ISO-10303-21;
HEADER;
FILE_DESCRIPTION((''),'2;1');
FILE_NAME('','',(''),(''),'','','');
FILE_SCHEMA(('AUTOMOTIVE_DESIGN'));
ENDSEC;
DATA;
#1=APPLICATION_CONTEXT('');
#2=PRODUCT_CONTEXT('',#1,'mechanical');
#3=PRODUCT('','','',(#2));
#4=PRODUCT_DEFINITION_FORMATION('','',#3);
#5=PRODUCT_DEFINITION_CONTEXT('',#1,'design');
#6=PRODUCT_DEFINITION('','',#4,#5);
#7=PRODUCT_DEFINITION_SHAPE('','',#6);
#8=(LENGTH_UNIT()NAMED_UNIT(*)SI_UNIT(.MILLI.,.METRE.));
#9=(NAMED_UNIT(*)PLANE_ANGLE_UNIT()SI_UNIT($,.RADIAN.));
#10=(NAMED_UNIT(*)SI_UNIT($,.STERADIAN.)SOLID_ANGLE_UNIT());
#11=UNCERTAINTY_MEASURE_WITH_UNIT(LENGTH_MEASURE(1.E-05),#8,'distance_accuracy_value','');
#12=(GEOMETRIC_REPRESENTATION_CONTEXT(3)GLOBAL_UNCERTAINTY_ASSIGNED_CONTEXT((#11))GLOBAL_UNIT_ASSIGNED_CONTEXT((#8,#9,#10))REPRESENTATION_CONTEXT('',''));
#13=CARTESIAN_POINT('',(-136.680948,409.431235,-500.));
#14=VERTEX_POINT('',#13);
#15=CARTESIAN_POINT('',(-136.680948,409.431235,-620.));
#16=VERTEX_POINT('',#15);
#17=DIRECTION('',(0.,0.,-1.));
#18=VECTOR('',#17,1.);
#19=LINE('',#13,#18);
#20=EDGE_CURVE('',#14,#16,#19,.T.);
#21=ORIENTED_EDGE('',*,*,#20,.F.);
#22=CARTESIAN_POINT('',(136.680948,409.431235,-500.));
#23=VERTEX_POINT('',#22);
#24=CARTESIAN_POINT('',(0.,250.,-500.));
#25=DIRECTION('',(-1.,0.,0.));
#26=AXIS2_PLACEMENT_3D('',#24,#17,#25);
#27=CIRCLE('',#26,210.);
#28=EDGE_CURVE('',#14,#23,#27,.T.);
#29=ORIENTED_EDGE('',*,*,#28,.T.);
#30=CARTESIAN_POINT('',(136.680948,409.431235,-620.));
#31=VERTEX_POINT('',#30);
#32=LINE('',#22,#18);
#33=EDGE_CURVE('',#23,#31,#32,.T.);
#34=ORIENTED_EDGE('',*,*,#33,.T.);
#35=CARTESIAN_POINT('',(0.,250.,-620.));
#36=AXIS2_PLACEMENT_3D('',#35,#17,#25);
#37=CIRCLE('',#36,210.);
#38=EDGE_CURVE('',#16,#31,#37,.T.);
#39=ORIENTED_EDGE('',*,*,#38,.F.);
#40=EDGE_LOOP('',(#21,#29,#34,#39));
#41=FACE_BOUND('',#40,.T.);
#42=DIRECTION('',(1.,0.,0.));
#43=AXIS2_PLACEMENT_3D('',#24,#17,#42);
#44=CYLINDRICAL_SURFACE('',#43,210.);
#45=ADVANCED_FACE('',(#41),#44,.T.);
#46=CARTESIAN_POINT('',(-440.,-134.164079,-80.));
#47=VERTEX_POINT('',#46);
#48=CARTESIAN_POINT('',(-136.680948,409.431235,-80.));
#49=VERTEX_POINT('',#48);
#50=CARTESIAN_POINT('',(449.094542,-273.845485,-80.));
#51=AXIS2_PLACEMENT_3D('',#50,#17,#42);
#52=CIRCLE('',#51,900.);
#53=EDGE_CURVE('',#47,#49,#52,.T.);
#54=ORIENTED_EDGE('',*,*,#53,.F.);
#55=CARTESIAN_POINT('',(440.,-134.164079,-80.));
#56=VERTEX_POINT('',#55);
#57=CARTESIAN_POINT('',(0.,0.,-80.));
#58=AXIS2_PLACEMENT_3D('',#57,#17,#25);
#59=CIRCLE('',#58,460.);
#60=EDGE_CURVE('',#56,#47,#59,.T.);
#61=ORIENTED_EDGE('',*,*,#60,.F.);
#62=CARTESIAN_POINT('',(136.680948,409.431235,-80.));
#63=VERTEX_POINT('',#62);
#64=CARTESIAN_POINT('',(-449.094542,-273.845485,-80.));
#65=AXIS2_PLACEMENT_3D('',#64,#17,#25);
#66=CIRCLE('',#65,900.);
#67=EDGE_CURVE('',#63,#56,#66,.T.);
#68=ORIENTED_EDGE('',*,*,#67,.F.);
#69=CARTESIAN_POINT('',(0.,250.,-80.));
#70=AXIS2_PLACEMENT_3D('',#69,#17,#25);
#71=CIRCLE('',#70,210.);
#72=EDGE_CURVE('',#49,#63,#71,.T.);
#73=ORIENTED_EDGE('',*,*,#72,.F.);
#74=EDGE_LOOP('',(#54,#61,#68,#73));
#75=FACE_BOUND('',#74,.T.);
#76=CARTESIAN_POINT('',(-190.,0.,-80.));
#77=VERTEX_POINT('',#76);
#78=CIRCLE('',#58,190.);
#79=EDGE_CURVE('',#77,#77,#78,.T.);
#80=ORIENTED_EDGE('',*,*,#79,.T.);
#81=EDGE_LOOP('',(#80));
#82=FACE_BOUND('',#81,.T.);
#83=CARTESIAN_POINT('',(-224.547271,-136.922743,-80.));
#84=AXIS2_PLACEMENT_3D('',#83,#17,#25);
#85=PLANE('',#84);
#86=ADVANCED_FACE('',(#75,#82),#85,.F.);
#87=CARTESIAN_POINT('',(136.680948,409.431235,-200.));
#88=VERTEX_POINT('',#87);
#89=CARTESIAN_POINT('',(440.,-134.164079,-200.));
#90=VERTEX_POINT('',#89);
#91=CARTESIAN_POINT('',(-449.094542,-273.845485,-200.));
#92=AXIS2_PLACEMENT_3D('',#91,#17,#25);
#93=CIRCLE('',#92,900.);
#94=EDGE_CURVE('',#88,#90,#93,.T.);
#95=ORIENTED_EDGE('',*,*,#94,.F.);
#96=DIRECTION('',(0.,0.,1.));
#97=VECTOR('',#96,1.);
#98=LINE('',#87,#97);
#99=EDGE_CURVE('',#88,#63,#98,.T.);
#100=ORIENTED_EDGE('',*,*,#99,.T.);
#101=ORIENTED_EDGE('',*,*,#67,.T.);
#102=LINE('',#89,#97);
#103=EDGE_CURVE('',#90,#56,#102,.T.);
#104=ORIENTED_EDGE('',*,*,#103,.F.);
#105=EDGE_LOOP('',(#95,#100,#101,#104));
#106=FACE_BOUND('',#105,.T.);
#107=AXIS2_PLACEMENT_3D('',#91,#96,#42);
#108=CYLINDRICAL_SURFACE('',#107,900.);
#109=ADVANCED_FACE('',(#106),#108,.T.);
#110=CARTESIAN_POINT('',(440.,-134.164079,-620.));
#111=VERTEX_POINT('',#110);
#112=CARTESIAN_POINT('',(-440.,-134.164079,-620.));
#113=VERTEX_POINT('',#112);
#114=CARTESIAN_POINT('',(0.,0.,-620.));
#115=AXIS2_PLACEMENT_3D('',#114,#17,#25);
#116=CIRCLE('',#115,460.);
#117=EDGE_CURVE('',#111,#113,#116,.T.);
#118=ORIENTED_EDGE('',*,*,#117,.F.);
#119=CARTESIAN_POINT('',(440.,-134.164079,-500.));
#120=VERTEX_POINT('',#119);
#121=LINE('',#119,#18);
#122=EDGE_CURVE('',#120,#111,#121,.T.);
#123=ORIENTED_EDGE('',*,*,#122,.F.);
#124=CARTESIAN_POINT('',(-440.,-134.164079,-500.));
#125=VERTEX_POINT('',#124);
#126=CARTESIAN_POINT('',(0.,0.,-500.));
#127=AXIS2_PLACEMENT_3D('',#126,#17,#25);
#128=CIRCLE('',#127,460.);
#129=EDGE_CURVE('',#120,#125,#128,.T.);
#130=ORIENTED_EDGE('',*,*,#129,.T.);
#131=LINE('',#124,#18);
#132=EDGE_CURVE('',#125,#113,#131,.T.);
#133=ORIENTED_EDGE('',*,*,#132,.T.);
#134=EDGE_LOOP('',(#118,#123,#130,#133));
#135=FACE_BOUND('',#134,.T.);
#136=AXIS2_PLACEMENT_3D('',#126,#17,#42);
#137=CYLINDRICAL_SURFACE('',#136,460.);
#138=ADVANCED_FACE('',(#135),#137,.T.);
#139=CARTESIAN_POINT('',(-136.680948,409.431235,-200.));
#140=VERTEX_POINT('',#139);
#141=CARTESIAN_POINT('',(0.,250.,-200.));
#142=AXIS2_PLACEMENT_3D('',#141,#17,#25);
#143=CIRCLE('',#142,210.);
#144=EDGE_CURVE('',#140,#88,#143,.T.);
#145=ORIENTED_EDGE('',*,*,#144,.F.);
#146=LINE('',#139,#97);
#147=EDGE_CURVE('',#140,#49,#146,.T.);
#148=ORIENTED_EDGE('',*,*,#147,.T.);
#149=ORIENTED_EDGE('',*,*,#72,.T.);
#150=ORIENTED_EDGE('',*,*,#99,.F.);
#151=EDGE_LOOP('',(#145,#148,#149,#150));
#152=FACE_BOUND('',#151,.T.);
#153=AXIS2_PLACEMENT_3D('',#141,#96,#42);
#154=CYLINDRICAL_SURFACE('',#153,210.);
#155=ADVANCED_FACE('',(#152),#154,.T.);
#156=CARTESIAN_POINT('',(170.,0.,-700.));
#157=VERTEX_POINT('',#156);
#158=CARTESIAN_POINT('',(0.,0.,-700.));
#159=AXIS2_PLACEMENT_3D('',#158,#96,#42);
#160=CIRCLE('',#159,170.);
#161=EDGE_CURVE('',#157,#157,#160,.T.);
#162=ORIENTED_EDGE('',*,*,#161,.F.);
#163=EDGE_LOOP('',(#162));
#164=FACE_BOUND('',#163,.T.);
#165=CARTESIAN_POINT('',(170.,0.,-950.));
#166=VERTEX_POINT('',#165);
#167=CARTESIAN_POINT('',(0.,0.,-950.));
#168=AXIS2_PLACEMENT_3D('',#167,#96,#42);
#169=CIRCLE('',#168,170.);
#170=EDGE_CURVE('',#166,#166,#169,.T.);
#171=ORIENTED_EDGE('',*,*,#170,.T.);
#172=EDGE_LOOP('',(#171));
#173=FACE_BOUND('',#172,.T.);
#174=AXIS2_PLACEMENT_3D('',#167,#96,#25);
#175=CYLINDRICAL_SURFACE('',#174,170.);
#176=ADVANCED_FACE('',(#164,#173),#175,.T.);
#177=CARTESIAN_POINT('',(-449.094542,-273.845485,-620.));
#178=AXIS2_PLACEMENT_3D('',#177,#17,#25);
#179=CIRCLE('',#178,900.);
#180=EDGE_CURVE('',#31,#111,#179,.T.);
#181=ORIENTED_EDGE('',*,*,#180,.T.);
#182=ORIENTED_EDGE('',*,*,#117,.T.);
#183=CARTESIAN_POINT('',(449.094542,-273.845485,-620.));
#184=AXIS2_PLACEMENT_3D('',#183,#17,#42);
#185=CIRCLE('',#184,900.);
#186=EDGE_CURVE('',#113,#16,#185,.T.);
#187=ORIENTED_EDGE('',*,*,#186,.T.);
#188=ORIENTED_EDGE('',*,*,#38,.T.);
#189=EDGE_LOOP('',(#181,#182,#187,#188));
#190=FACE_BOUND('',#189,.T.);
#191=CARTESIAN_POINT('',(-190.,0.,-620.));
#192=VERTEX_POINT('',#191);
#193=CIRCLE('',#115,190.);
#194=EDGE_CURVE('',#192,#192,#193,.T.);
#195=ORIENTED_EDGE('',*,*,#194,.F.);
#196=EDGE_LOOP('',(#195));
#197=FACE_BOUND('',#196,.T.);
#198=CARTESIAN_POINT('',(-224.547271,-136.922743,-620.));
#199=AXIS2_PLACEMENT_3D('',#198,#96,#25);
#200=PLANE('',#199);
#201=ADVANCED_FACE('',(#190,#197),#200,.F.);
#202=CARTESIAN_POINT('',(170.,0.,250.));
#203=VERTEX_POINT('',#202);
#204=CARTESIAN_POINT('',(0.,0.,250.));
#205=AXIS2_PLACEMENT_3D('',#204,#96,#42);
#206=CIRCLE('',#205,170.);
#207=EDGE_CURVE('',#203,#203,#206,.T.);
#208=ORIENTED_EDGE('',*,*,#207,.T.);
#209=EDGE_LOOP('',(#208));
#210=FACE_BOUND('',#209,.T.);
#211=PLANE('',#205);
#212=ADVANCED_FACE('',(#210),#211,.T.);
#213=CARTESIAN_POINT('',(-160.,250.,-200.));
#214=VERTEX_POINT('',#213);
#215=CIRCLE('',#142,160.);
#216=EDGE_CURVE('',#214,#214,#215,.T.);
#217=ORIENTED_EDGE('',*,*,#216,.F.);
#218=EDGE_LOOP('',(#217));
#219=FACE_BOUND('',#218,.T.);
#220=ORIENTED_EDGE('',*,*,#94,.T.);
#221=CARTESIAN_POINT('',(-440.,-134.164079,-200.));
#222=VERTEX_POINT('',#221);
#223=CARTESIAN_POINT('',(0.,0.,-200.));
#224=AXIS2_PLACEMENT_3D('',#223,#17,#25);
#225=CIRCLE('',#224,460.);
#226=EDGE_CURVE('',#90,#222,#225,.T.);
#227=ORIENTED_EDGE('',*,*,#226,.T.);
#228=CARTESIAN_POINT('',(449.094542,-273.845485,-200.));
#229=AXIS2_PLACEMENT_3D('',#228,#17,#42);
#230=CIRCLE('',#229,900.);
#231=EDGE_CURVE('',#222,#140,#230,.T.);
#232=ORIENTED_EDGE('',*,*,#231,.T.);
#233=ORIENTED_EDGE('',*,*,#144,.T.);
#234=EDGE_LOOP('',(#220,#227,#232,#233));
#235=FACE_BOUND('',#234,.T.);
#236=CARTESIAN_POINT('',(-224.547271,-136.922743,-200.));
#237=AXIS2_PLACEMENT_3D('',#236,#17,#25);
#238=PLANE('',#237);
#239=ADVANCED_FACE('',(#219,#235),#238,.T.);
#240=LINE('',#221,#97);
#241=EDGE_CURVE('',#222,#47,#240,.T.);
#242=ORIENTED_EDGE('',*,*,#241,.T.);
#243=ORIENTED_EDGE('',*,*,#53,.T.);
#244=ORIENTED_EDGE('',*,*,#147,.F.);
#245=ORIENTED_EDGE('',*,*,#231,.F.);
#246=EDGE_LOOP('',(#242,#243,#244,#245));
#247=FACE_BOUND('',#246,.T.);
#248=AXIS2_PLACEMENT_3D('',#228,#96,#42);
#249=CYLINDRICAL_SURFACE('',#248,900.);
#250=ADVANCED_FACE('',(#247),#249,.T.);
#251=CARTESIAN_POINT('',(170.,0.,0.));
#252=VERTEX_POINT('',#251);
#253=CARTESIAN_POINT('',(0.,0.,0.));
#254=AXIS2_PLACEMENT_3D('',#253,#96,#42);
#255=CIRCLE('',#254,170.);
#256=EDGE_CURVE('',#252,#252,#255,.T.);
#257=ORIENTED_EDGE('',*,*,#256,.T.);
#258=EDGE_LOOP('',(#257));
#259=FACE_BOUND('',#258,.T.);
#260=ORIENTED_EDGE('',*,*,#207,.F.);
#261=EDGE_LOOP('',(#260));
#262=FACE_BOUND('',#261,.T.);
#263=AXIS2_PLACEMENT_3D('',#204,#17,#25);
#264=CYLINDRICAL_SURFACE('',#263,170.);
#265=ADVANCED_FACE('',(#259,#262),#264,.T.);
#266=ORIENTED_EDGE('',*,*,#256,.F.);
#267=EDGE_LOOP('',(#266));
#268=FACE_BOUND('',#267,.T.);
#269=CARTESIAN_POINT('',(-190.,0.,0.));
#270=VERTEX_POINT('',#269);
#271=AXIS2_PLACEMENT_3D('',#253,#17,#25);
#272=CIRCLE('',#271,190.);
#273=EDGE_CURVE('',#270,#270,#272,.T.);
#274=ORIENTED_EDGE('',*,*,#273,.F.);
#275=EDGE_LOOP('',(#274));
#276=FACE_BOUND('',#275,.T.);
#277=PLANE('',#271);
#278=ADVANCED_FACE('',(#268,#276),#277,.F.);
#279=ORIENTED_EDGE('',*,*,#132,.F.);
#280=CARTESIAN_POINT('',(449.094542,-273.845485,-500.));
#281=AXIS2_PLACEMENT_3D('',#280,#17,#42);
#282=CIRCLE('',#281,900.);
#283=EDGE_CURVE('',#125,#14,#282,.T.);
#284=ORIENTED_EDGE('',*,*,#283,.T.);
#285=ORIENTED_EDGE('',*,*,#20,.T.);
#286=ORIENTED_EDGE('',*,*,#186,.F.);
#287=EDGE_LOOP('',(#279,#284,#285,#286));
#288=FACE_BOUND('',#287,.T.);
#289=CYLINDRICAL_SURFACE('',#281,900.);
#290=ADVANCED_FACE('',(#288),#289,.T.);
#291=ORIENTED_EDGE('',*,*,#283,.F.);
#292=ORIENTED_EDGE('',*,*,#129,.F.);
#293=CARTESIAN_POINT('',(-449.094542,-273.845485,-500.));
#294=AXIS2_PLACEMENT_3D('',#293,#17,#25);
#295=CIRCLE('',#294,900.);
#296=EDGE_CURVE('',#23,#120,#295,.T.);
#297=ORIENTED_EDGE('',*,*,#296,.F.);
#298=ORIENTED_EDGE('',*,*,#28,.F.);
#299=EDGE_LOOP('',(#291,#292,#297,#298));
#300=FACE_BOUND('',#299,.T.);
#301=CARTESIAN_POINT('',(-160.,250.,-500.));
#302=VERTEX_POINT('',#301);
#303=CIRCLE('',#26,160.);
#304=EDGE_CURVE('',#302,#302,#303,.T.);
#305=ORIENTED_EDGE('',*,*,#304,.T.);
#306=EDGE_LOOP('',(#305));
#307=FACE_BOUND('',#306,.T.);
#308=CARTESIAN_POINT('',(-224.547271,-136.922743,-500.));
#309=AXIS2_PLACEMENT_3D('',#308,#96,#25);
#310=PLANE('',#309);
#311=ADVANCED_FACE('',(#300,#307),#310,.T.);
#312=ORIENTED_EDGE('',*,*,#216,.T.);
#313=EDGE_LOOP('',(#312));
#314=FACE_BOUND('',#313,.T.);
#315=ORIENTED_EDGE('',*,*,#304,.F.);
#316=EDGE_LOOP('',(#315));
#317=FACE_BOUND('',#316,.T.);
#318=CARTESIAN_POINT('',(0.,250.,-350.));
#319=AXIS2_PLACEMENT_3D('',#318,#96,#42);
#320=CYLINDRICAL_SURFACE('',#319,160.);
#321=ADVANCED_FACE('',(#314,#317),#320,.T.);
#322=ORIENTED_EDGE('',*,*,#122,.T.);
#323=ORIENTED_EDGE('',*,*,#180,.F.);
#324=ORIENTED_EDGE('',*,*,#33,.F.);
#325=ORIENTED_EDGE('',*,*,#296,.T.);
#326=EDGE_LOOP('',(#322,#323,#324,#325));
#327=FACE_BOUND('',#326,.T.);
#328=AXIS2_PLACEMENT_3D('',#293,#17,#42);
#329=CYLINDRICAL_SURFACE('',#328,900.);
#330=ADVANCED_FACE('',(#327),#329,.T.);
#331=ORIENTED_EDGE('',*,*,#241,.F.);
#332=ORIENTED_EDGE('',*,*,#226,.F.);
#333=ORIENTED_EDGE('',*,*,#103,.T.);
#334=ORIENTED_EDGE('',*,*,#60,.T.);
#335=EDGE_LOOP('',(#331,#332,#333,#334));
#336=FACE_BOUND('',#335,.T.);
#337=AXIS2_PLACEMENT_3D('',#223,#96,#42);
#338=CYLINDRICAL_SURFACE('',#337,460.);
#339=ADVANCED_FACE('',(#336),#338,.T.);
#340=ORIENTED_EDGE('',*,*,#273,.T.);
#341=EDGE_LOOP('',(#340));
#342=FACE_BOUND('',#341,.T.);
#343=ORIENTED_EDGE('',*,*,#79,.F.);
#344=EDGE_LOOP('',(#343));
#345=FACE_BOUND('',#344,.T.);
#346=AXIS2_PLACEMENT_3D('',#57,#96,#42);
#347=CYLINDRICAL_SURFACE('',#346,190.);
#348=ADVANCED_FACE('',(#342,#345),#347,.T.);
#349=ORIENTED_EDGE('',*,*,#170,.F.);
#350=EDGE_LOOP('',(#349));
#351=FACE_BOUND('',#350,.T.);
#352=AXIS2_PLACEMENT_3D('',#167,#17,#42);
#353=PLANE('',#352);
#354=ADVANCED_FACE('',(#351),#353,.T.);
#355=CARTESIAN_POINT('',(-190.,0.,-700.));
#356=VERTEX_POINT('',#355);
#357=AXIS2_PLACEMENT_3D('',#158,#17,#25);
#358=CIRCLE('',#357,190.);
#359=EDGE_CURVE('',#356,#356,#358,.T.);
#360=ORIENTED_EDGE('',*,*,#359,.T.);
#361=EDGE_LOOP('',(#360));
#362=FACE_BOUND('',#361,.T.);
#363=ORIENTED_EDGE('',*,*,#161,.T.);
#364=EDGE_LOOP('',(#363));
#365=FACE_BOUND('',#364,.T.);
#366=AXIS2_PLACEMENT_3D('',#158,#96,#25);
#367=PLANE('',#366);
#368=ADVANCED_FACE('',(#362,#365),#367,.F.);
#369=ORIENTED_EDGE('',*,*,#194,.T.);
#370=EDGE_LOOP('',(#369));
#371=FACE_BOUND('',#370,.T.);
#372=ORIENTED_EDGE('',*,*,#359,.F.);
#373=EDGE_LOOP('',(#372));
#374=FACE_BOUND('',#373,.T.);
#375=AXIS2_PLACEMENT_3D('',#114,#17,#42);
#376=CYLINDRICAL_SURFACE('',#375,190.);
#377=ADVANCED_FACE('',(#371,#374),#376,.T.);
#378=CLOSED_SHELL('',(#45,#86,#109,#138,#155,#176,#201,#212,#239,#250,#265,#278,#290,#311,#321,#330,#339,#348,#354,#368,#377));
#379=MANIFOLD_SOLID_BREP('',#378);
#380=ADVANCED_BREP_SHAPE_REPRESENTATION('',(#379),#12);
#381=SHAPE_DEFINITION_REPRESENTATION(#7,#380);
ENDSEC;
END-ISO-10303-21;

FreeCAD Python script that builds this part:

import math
import FreeCAD as App
import Part
import Sketcher

V = App.Vector
Q = App.Units.Quantity

doc = App.newDocument("Part")
params = doc.addObject("Spreadsheet::Sheet", "Params")
for row, (alias, value) in enumerate([
    ("sketch1_diameter", "340 mm"),
    ("pad1_length", "250 mm"),
    ("sketch2_diameter", "380 mm"),
    ("pad2_length", "80 mm"),
    ("sketch3_radius", "460 mm"),
    ("sketch3_radius2", "900 mm"),
    ("sketch3_radius3", "210 mm"),
    ("pad3_length", "120 mm"),
    ("sketch4_diameter", "320 mm"),
    ("pad4_length", "150 mm"),
], start=1):
    params.set(f"A{row}", alias)
    params.set(f"B{row}", "=" + value)
    params.setAlias(f"B{row}", alias)

body = doc.addObject("PartDesign::Body", "Body")

# Sketch on XY plane
sketch1 = body.newObject("Sketcher::SketchObject", "Sketch")
sketch1.AttachmentSupport = (doc.getObject("XY_Plane"), [""])
sketch1.MapMode = "FlatFace"
sketch1.addGeometry(Part.Circle(V(0, 0, 0), V(0, 0, 1), 170), False)
sketch1.addConstraint(Sketcher.Constraint("Coincident", 0, 3, -1, 1))
sketch1.addConstraint(Sketcher.Constraint("Diameter", 0, Q("340 mm")))
sketch1.setExpression("Constraints[1]", "Params.sketch1_diameter")
pad1 = body.newObject("PartDesign::Pad", "Pad")
pad1.Profile = sketch1
pad1.setExpression("Length", "Params.pad1_length")

# Sketch on XY plane
sketch2 = body.newObject("Sketcher::SketchObject", "Sketch001")
sketch2.AttachmentSupport = (doc.getObject("XY_Plane"), [""])
sketch2.MapMode = "FlatFace"
sketch2.addGeometry(Part.Circle(V(0, 0, 0), V(0, 0, 1), 190), False)
sketch2.addConstraint(Sketcher.Constraint("Coincident", 0, 3, -1, 1))
sketch2.addConstraint(Sketcher.Constraint("Diameter", 0, Q("380 mm")))
sketch2.setExpression("Constraints[1]", "Params.sketch2_diameter")
pad2 = body.newObject("PartDesign::Pad", "Pad001")
pad2.Profile = sketch2
pad2.setExpression("Length", "Params.pad2_length")
pad2.Reversed = True

# Sketch on XY plane
sketch3 = body.newObject("Sketcher::SketchObject", "Sketch002")
sketch3.AttachmentSupport = (doc.getObject("XY_Plane"), [""])
sketch3.MapMode = "FlatFace"
sketch3.AttachmentOffset = App.Placement(V(0, 0, -80), App.Rotation())
sketch3.addGeometry(Part.ArcOfCircle(Part.Circle(V(0, 0, 0), V(0, 0, 1), 460), math.radians(-163), math.radians(-17)), False)
sketch3.addGeometry(Part.ArcOfCircle(Part.Circle(V(449, -274, 0), V(0, 0, 1), 900), math.radians(131), math.radians(171)), False)
sketch3.addGeometry(Part.ArcOfCircle(Part.Circle(V(0, 250, 0), V(0, 0, 1), 210), math.radians(49), math.radians(131)), False)
sketch3.addGeometry(Part.ArcOfCircle(Part.Circle(V(-449, -274, 0), V(0, 0, 1), 900), math.radians(9), math.radians(49)), False)
sketch3.addConstraint(Sketcher.Constraint("Coincident", 0, 1, 1, 2))
sketch3.addConstraint(Sketcher.Constraint("Tangent", 1, 1, 2, 2))
sketch3.addConstraint(Sketcher.Constraint("Tangent", 2, 1, 3, 2))
sketch3.addConstraint(Sketcher.Constraint("Coincident", 3, 1, 0, 2))
sketch3.addConstraint(Sketcher.Constraint("Coincident", 0, 3, -1, 1))
sketch3.addConstraint(Sketcher.Constraint("Equal", 1, 3))
sketch3.addConstraint(Sketcher.Constraint("Symmetric", 1, 3, 3, 3, -2))
sketch3.addConstraint(Sketcher.Constraint("Radius", 0, Q("460 mm")))
sketch3.addConstraint(Sketcher.Constraint("Radius", 1, Q("900 mm")))
sketch3.addConstraint(Sketcher.Constraint("Radius", 2, Q("210 mm")))
sketch3.addConstraint(Sketcher.Constraint("DistanceY", -1, 1, 2, 3, Q("250 mm")))
sketch3.addConstraint(Sketcher.Constraint("DistanceX", 0, 1, -1, 1, Q("440 mm")))
sketch3.setExpression("Constraints[7]", "Params.sketch3_radius")
sketch3.setExpression("Constraints[8]", "Params.sketch3_radius2")
sketch3.setExpression("Constraints[9]", "Params.sketch3_radius3")
pad3 = body.newObject("PartDesign::Pad", "Pad002")
pad3.Profile = sketch3
pad3.setExpression("Length", "Params.pad3_length")
pad3.Reversed = True

# Sketch on XY plane
sketch4 = body.newObject("Sketcher::SketchObject", "Sketch003")
sketch4.AttachmentSupport = (doc.getObject("XY_Plane"), [""])
sketch4.MapMode = "FlatFace"
sketch4.AttachmentOffset = App.Placement(V(0, 0, -200), App.Rotation())
sketch4.addGeometry(Part.Circle(V(0, 250, 0), V(0, 0, 1), 160), False)
sketch4.addConstraint(Sketcher.Constraint("PointOnObject", 0, 3, -2))
sketch4.addConstraint(Sketcher.Constraint("Diameter", 0, Q("320 mm")))
sketch4.addConstraint(Sketcher.Constraint("DistanceY", -1, 1, 0, 3, Q("250 mm")))
sketch4.setExpression("Constraints[1]", "Params.sketch4_diameter")
pad4 = body.newObject("PartDesign::Pad", "Pad003")
pad4.Profile = sketch4
pad4.setExpression("Length", "Params.pad4_length")
pad4.Reversed = True
body2 = doc.addObject("PartDesign::Body", "Body001")
doc.recompute()

body2.BaseFeature = body
doc.recompute()

mirroring = doc.addObject("Part::Mirroring", "Mirroring")
mirroring.Source = body
mirroring.Base = V(0, 250, -350)
mirroring.Normal = V(0, 0, -1)
body3 = doc.addObject("PartDesign::Body", "Body002")
body3.BaseFeature = mirroring
boolean = body2.newObject("PartDesign::Boolean", "Boolean")
boolean.Type = "Fuse"
boolean.addObjects([body3])
doc.recompute()
mirroring.Visibility = False

doc.recompute()
